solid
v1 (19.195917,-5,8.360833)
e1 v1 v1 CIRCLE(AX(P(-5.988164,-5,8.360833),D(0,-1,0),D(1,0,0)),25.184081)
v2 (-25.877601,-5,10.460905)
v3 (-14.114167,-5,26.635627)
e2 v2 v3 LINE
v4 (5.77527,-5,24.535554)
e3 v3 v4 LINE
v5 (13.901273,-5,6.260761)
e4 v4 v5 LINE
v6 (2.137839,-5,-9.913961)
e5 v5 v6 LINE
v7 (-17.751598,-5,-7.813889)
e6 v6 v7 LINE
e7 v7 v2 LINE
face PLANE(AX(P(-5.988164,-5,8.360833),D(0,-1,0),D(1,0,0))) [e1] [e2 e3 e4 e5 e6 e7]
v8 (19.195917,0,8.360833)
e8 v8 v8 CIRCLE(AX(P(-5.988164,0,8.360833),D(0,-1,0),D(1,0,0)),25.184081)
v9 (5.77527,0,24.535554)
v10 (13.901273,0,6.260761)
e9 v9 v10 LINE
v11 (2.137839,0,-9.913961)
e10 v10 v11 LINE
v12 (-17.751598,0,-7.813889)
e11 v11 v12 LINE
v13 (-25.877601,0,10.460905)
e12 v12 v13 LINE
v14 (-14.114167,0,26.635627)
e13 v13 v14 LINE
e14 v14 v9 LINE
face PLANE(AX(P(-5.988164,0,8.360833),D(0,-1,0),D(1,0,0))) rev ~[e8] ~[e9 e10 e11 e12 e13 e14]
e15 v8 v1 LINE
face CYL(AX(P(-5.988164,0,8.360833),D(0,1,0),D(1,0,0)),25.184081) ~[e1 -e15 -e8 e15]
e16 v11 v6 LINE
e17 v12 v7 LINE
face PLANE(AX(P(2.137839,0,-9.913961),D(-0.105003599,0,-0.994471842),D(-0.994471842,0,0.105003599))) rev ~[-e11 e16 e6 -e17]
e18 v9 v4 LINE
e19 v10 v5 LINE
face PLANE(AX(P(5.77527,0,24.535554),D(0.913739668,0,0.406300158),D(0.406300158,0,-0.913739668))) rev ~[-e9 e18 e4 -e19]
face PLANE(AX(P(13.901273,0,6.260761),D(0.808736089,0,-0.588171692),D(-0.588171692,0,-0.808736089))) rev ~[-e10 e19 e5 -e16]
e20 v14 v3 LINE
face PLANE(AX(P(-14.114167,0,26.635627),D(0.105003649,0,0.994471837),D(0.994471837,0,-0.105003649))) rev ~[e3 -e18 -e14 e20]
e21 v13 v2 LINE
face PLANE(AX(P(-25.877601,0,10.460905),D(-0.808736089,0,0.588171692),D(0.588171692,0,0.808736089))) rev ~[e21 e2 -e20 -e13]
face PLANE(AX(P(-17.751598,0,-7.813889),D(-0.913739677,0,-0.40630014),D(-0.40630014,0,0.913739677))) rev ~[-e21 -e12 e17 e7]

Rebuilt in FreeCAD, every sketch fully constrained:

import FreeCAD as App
import Part
import Sketcher
from FreeCAD import Vector

doc = App.newDocument("Part")
body = doc.addObject("PartDesign::Body", "Body")

# Sketch on XZ plane
sketch1 = doc.addObject("Sketcher::SketchObject", "Sketch")
body.addObject(sketch1)
sketch1.AttachmentSupport = (doc.XZ_Plane, [""])
sketch1.MapMode = "FlatFace"
sketch1.addGeometry([
    Part.Circle(Vector(-6, 8, 0), Vector(0, 0, 1), 25),  # 0
    Part.LineSegment(Vector(-14, 27, 0), Vector(6, 25, 0)),  # 1
    Part.LineSegment(Vector(6, 25, 0), Vector(14, 6, 0)),  # 2
    Part.LineSegment(Vector(14, 6, 0), Vector(2, -10, 0)),  # 3
    Part.LineSegment(Vector(2, -10, 0), Vector(-18, -8, 0)),  # 4
    Part.LineSegment(Vector(-18, -8, 0), Vector(-26, 10, 0)),  # 5
    Part.LineSegment(Vector(-26, 10, 0), Vector(-14, 27, 0)),  # 6
], False)
sketch1.addConstraint([
    Sketcher.Constraint("Coincident", 1, 2, 2, 1),
    Sketcher.Constraint("Coincident", 2, 2, 3, 1),
    Sketcher.Constraint("Coincident", 3, 2, 4, 1),
    Sketcher.Constraint("Coincident", 4, 2, 5, 1),
    Sketcher.Constraint("Coincident", 5, 2, 6, 1),
    Sketcher.Constraint("Coincident", 6, 2, 1, 1),
    Sketcher.Constraint("Parallel", 1, 4),
    Sketcher.Constraint("Parallel", 2, 5),
    Sketcher.Constraint("Parallel", 3, 6),
    Sketcher.Constraint("Equal", 1, 2),
    Sketcher.Constraint("Equal", 2, 3),
    Sketcher.Constraint("Equal", 3, 4),
    Sketcher.Constraint("Distance", 1, 20.0),
    Sketcher.Constraint("Diameter", 0, 50.368162),
    Sketcher.Constraint("DistanceX", 4, 2, -1, 1, 17.751598),
    Sketcher.Constraint("DistanceX", 5, 2, -1, 1, 25.877601),
    Sketcher.Constraint("DistanceX", -1, 1, 1, 2, 5.77527),
    Sketcher.Constraint("DistanceY", -1, 1, 2, 2, 6.260761),
    Sketcher.Constraint("DistanceX", -1, 1, 3, 2, 2.137839),
    Sketcher.Constraint("DistanceY", 0, 3, 1, 2, 16.174721),
    Sketcher.Constraint("DistanceX", 0, 3, -1, 1, 5.988164),
])
pad1 = doc.addObject("PartDesign::Pad", "Pad")
body.addObject(pad1)
pad1.Profile = sketch1
pad1.Length = 5

doc.recompute()
